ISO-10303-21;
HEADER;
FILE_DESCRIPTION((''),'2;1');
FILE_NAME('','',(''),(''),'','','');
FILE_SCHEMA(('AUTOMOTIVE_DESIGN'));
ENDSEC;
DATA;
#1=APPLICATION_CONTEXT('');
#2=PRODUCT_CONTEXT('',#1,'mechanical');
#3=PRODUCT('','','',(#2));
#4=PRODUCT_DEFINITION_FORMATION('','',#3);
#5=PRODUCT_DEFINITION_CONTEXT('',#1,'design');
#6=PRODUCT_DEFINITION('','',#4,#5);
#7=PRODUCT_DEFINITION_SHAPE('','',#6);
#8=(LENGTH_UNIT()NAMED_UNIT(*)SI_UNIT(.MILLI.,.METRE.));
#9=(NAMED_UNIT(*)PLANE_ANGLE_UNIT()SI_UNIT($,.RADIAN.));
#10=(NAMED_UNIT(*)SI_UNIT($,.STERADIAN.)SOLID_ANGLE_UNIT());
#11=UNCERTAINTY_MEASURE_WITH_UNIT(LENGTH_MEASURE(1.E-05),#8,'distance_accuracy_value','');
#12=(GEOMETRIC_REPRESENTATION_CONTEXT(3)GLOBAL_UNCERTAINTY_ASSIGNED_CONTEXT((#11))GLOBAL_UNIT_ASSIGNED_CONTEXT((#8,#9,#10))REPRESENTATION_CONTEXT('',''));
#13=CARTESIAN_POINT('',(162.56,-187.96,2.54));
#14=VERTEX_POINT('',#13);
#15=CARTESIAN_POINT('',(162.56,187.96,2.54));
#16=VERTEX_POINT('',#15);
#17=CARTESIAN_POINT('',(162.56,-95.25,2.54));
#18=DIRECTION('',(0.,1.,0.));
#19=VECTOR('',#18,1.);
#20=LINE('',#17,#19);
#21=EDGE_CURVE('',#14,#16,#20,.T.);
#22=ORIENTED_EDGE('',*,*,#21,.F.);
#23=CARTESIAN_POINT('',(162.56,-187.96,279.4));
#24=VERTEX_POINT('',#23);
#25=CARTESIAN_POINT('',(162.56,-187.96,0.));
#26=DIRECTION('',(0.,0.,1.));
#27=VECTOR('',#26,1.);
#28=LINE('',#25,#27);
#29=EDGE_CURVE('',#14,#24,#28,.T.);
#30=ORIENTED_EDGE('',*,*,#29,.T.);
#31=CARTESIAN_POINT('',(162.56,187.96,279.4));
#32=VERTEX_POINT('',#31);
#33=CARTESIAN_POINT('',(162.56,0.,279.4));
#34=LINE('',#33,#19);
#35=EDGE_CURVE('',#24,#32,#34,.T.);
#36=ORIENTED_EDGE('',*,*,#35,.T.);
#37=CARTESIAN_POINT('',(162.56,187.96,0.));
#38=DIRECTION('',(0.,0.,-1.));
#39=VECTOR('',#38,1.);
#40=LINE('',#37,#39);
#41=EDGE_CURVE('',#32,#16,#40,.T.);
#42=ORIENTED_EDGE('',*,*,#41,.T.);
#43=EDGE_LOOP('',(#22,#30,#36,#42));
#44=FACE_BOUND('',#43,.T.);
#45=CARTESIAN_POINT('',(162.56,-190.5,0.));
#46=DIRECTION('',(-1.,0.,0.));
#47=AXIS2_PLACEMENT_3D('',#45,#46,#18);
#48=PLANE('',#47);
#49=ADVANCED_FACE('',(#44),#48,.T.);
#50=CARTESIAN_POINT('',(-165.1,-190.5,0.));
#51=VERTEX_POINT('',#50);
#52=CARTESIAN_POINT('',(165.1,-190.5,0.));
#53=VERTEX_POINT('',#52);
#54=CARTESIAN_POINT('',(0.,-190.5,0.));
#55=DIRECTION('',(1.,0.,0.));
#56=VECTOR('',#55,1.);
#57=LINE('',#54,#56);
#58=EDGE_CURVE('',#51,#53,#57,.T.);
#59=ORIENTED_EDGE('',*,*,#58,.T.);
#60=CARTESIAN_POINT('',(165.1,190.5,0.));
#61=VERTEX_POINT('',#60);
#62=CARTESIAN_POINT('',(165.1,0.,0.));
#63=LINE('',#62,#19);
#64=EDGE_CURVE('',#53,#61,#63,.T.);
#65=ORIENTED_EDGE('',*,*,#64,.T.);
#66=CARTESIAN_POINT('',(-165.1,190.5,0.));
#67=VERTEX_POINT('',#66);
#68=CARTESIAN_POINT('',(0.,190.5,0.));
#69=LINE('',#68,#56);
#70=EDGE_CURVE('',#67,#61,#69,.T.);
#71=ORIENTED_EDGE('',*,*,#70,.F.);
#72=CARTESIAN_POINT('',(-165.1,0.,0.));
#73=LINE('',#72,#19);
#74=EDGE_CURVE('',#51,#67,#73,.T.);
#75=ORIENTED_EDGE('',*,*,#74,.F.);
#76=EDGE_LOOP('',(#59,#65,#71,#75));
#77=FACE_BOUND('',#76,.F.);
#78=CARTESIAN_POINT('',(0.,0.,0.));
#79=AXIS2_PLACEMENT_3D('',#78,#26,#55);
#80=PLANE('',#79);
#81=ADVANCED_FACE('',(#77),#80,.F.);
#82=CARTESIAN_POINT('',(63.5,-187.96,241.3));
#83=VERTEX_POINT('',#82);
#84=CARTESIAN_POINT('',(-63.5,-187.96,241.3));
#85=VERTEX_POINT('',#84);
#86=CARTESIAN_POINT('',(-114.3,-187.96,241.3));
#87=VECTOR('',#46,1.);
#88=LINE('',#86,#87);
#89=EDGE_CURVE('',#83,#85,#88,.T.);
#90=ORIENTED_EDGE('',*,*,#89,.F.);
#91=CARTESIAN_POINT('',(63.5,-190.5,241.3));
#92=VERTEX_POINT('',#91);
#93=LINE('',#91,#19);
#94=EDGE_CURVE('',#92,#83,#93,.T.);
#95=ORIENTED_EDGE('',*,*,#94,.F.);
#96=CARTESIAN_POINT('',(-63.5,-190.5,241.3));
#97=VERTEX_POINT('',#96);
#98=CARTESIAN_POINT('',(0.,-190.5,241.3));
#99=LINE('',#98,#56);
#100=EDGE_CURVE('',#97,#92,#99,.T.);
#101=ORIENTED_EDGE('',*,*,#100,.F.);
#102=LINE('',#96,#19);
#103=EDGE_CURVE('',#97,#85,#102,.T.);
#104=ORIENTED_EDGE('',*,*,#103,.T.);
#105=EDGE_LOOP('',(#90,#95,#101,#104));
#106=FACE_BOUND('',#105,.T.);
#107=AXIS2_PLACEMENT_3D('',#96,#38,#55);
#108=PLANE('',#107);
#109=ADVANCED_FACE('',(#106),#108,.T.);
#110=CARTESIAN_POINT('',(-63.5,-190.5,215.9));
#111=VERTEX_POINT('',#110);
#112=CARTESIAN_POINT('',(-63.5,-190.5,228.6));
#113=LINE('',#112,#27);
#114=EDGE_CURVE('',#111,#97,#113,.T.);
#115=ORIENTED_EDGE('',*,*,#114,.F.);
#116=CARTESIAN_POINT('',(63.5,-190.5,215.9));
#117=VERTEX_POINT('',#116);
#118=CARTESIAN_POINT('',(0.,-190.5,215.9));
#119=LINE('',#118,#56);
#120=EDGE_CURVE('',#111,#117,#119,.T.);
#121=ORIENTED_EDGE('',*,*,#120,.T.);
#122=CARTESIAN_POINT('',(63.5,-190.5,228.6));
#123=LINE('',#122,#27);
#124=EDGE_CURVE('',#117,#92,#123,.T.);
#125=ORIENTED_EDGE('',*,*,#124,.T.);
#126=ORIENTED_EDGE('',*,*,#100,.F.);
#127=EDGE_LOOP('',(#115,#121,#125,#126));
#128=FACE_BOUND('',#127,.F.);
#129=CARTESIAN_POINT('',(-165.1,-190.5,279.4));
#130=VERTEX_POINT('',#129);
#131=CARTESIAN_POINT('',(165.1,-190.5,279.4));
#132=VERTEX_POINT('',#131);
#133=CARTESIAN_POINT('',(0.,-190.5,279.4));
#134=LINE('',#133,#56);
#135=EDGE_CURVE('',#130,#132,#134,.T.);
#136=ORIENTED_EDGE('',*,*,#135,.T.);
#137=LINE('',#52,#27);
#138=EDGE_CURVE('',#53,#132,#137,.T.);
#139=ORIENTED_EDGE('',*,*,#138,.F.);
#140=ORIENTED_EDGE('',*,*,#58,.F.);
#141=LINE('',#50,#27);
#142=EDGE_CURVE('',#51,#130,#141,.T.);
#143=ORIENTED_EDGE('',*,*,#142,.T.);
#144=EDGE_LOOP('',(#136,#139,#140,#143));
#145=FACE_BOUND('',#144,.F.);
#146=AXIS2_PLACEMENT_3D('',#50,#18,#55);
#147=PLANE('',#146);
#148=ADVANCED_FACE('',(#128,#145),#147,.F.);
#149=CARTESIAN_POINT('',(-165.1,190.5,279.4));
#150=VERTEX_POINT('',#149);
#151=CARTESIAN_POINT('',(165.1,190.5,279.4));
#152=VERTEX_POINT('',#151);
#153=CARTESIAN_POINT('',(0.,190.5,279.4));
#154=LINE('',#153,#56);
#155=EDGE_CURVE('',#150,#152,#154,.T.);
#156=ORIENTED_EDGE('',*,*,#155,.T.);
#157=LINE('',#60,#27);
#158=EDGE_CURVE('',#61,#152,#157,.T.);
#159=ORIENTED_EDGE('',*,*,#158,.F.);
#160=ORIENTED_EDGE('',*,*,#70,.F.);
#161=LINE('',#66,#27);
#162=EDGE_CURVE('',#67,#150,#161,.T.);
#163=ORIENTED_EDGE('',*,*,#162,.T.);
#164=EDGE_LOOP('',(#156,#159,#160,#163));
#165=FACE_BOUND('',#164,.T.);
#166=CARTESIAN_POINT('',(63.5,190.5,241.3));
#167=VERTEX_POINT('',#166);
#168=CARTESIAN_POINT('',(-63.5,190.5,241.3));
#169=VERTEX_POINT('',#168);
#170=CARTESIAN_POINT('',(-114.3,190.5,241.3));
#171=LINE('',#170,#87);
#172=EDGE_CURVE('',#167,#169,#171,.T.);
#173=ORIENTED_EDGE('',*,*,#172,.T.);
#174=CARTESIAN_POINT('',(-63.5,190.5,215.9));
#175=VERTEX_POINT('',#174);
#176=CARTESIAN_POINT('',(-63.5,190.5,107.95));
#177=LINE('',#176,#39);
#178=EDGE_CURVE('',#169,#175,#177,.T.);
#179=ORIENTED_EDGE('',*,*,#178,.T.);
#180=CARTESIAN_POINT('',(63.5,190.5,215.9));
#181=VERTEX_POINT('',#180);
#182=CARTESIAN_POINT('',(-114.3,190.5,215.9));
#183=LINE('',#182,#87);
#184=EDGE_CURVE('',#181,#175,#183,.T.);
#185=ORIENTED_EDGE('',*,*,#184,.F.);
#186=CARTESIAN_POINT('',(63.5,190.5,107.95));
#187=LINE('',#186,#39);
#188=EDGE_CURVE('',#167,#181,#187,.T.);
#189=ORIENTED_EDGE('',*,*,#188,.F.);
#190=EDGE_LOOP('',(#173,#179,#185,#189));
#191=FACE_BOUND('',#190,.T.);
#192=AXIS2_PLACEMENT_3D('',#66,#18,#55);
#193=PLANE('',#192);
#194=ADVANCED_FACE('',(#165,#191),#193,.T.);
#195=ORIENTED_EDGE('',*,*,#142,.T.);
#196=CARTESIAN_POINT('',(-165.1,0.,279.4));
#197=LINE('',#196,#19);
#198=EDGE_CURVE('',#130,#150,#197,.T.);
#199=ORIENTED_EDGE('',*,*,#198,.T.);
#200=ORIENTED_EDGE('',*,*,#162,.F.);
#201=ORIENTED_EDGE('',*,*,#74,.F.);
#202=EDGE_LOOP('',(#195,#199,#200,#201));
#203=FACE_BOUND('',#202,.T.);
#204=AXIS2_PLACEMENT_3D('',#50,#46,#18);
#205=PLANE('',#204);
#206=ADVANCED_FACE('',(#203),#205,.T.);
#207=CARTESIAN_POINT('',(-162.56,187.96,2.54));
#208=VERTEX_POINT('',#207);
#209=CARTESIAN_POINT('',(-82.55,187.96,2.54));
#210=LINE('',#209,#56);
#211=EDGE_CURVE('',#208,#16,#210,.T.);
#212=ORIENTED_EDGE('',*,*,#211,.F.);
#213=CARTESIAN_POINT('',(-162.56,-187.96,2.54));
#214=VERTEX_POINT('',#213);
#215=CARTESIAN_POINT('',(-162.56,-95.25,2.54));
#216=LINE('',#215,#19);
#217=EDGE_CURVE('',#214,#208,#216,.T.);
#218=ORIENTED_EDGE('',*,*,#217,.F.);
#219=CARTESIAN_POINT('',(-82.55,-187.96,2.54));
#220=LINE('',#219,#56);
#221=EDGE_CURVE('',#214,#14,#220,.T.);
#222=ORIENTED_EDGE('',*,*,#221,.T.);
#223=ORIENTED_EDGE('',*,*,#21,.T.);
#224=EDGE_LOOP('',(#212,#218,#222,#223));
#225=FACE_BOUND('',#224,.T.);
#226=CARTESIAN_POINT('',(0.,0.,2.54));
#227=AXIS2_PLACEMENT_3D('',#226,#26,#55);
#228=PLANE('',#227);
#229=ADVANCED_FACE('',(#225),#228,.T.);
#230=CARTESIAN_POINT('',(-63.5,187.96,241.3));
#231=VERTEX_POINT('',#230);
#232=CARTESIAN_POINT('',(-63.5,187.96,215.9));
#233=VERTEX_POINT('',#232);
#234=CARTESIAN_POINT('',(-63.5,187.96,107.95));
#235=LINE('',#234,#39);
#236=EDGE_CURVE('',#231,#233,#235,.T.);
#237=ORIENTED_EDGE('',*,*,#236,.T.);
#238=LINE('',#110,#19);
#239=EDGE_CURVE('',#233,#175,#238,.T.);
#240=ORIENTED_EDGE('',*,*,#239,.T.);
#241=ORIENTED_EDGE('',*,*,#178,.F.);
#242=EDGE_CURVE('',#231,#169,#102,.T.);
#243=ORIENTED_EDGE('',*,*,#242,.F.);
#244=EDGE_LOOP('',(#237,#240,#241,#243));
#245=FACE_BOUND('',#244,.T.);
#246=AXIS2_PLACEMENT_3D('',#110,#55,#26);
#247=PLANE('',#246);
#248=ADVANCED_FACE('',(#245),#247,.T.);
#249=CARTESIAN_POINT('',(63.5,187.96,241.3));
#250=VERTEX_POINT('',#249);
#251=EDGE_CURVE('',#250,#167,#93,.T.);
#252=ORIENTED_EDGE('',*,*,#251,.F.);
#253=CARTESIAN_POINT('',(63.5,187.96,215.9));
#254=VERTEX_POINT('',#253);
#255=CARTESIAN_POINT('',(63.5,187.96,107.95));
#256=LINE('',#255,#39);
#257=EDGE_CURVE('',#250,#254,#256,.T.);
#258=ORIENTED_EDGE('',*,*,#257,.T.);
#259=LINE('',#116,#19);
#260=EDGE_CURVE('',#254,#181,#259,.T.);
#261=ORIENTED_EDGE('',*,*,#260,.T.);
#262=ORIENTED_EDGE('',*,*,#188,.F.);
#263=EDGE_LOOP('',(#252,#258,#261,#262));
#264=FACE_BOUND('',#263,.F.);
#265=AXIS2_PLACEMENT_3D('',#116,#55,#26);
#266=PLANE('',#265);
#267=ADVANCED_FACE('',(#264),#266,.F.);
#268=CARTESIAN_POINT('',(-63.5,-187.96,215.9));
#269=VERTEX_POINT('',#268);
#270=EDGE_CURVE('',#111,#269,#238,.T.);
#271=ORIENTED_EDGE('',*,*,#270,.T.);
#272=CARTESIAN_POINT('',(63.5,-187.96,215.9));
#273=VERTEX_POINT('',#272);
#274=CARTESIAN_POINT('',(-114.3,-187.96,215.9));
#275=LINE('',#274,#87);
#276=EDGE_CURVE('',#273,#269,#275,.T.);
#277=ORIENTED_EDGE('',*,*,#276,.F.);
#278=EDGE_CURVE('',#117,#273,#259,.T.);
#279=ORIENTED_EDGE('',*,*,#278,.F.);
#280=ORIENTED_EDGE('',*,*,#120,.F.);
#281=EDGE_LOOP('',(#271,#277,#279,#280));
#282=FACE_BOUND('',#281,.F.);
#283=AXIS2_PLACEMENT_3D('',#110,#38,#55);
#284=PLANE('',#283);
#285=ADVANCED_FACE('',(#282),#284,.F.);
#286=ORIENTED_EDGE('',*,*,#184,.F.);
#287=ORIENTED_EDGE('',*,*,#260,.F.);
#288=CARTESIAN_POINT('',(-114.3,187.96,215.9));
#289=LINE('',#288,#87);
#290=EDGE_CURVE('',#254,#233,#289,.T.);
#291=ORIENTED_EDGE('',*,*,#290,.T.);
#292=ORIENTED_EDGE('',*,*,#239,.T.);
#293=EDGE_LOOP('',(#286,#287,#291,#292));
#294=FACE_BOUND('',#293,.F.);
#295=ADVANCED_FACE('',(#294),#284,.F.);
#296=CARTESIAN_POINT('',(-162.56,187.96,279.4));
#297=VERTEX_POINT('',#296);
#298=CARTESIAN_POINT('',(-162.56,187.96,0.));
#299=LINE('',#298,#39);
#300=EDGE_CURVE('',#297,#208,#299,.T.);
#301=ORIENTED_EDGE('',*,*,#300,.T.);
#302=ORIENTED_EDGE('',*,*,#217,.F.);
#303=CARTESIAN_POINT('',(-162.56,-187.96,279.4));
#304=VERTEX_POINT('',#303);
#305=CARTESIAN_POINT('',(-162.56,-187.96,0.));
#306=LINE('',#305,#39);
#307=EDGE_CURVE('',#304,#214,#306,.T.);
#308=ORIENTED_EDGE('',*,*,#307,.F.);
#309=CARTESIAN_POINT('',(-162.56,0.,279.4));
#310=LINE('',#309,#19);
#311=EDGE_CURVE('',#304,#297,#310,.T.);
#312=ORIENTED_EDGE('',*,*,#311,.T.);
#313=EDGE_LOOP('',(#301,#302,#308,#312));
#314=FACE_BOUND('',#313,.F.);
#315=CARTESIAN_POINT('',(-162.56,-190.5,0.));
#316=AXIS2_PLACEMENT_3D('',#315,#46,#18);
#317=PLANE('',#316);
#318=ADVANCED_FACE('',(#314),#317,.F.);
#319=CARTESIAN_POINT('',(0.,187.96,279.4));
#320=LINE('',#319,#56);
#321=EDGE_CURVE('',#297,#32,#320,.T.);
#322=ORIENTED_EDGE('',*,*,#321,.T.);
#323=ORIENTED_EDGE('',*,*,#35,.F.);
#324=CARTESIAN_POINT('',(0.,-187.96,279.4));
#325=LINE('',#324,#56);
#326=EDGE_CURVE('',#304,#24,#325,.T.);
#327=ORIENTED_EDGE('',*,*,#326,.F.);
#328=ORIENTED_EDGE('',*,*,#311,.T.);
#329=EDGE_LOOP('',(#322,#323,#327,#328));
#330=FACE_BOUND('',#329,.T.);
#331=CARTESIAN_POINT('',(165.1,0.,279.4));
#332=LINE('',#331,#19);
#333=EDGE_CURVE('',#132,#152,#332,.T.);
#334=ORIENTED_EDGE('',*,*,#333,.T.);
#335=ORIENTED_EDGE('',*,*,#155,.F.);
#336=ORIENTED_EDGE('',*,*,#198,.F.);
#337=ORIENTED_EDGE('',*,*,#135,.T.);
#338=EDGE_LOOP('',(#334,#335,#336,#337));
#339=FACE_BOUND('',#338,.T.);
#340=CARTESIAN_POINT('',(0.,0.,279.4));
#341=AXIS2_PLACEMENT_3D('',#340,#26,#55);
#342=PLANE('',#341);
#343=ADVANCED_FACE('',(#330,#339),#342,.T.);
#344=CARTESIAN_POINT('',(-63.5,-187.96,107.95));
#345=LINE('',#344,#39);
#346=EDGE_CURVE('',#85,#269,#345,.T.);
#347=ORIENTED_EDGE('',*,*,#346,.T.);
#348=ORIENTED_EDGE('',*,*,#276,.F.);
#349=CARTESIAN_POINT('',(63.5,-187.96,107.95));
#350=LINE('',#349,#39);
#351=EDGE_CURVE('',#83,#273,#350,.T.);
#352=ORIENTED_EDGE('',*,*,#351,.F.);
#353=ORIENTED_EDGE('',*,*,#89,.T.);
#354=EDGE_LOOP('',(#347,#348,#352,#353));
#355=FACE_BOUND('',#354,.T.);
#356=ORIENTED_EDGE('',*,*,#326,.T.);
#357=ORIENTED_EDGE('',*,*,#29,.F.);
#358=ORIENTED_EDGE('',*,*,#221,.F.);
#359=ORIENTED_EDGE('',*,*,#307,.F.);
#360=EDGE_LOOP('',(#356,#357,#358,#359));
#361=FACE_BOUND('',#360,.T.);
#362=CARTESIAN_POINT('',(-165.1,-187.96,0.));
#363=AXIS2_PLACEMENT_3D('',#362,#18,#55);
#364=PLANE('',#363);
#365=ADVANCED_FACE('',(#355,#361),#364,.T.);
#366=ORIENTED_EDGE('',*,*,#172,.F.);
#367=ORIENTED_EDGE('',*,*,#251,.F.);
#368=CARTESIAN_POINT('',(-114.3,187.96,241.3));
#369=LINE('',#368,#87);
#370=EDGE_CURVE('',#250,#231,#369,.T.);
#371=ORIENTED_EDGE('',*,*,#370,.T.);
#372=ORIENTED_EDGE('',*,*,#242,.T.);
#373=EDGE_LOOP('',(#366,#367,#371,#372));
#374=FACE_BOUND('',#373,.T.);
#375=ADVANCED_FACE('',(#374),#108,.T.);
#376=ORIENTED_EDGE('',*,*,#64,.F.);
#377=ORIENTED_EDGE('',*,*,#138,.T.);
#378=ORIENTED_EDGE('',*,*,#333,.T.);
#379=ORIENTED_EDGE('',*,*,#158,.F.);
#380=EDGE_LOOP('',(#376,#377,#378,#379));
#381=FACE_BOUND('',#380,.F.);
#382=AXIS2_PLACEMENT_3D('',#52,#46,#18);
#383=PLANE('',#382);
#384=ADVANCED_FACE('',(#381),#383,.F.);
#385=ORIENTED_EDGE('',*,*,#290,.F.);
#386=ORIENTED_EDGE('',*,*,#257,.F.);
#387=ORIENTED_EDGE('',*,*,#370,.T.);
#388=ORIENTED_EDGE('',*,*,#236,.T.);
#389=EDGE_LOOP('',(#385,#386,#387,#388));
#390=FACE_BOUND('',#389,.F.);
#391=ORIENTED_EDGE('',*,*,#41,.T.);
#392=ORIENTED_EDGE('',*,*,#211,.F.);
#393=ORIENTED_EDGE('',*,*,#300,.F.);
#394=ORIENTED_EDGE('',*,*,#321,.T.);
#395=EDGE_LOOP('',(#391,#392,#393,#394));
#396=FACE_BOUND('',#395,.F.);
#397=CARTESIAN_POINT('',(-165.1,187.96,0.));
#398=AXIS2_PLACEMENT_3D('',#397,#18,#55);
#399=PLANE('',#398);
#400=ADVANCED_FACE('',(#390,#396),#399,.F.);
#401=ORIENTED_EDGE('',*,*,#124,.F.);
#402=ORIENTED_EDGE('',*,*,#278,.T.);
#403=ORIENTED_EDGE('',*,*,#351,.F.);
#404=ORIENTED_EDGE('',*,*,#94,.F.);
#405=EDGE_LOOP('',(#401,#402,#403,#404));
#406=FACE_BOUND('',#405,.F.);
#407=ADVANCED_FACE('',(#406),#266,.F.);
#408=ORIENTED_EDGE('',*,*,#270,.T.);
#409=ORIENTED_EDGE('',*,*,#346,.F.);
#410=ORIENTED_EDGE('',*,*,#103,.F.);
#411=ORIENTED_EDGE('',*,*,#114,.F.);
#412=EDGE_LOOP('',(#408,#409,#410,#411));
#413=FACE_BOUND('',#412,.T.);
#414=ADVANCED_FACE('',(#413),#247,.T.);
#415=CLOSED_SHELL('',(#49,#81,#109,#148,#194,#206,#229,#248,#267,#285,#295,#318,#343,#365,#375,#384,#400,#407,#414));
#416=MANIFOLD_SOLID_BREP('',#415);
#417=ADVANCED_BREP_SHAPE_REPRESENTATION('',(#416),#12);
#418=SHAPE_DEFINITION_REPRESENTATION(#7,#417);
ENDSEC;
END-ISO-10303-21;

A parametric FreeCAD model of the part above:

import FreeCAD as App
import Part
import Sketcher

V = App.Vector
Q = App.Units.Quantity


def faces_at(feature, points):
    """Names of the faces that lie closest to the given points."""
    faces = feature.Shape.Faces
    near = lambda p: min(range(len(faces)), key=lambda i: faces[i].distToShape(Part.Vertex(*p))[0])
    return sorted({f"Face{near(p) + 1}" for p in points})


def add_polygon(sketch, points):
    """Adds a closed chain of lines whose ends are joined by coincident constraints."""
    first, n = sketch.GeometryCount, len(points)
    for a, b in zip(points, points[1:] + points[:1]):
        sketch.addGeometry(Part.LineSegment(App.Vector(*a, 0), App.Vector(*b, 0)), False)
    for i in range(n):
        sketch.addConstraint(Sketcher.Constraint("Coincident", first + i, 2, first + (i + 1) % n, 1))

doc = App.newDocument("Part")
body = doc.addObject("PartDesign::Body", "Body")

sketch1 = doc.addObject("Sketcher::SketchObject", "Sketch")
body.addObject(sketch1)
sketch1.AttachmentSupport = (doc.XY_Plane, [""])
sketch1.MapMode = "FlatFace"
add_polygon(sketch1, [(-165, 190), (-165, -190), (165, -190), (165, 190)])
sketch1.addConstraint([
    Sketcher.Constraint("Vertical", 0),
    Sketcher.Constraint("Horizontal", 1),
    Sketcher.Constraint("Vertical", 2),
    Sketcher.Constraint("Horizontal", 3),
    Sketcher.Constraint("Symmetric", 0, 2, 2, 2, -1, 1),
    Sketcher.Constraint("DistanceX", 1, 1, 1, 2, Q("13 in")),
    Sketcher.Constraint("DistanceY", 0, 2, 0, 1, Q("15 in")),
])
pad1 = doc.addObject("PartDesign::Pad", "Pad")
body.addObject(pad1)
pad1.Profile = sketch1
pad1.Length = Q("11 in")
doc.recompute()

thickness = doc.addObject("PartDesign::Thickness", "Thickness")
body.addObject(thickness)
thickness.Base = (pad1, faces_at(pad1, [(0, 0, 279.4)]))
thickness.Value = Q("0.1 in")
thickness.Reversed = True
thickness.Join = "Arc"

sketch2 = doc.addObject("Sketcher::SketchObject", "Sketch001")
body.addObject(sketch2)
sketch2.AttachmentSupport = (doc.XZ_Plane, [""])
sketch2.MapMode = "FlatFace"
sketch2.AttachmentOffset = App.Placement(V(0, 0, 7.5 * 25.4), App.Rotation())
add_polygon(sketch2, [(-64, 241), (-64, 216), (64, 216), (64, 241)])
sketch2.addConstraint([
    Sketcher.Constraint("Vertical", 0),
    Sketcher.Constraint("Horizontal", 1),
    Sketcher.Constraint("Vertical", 2),
    Sketcher.Constraint("Horizontal", 3),
    Sketcher.Constraint("DistanceX", 1, 1, 1, 2, Q("5 in")),
    Sketcher.Constraint("DistanceY", 0, 2, 0, 1, Q("1 in")),
    Sketcher.Constraint("DistanceX", 0, 2, -1, 1, Q("2.5 in")),
    Sketcher.Constraint("DistanceY", -1, 1, 0, 2, Q("8.5 in")),
])
pocket1 = doc.addObject("PartDesign::Pocket", "Pocket")
body.addObject(pocket1)
pocket1.Profile = sketch2
pocket1.Type = "ThroughAll"

doc.recompute()
